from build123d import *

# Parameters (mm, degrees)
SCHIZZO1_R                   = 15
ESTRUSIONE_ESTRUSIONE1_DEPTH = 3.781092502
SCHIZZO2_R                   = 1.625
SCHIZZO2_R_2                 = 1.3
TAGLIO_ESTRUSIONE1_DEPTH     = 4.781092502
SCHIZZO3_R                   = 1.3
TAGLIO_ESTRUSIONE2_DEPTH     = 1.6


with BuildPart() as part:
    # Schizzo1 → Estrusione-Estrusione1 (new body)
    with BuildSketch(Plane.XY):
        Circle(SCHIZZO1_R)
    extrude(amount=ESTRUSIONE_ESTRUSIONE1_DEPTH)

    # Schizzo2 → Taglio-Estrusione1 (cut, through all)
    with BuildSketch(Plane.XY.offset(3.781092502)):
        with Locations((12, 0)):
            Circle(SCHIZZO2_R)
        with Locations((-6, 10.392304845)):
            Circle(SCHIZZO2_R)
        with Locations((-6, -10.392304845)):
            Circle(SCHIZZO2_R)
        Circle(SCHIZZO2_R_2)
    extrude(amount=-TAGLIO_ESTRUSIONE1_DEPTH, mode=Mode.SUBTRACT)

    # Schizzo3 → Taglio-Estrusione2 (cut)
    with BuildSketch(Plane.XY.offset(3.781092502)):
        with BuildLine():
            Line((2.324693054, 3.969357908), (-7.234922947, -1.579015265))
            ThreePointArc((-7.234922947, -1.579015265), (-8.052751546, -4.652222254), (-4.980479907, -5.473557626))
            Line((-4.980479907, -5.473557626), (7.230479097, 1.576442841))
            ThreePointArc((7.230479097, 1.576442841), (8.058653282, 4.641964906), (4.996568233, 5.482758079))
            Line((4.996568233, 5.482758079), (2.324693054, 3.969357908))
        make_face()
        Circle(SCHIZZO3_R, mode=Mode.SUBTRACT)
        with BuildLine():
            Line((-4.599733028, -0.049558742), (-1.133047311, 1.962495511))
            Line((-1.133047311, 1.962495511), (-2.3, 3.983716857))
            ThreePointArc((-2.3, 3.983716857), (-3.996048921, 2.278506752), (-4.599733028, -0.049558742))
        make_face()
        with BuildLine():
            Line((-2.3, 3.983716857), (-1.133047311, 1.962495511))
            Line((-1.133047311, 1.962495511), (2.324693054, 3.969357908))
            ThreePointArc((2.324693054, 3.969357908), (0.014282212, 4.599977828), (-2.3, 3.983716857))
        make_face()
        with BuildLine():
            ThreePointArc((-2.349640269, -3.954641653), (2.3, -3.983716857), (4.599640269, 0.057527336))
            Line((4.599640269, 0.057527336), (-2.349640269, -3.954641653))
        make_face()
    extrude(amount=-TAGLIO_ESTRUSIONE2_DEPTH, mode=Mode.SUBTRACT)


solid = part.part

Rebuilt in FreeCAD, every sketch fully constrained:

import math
import FreeCAD as App
import Part
import Sketcher
Q = App.Units.Quantity

doc = App.newDocument("Part")
body = doc.addObject("PartDesign::Body", "Body")

# Sketch on XY plane
sketch1 = body.newObject("Sketcher::SketchObject", "Sketch")
sketch1.AttachmentSupport = (doc.getObject("XY_Plane"), [""])
sketch1.MapMode = "FlatFace"
sketch1.addGeometry(Part.Circle(App.Vector(0, 0, 0), App.Vector(0, 0, 1), 15), False)
sketch1.addConstraint(Sketcher.Constraint("Coincident", 0, 3, -1, 1))
sketch1.addConstraint(Sketcher.Constraint("Diameter", 0, Q("30 mm")))
pad1 = body.newObject("PartDesign::Pad", "Pad")
pad1.Profile = sketch1
pad1.Length = 3.781093

# Sketch on XY plane
sketch2 = body.newObject("Sketcher::SketchObject", "Sketch001")
sketch2.AttachmentSupport = (doc.getObject("XY_Plane"), [""])
sketch2.MapMode = "FlatFace"
sketch2.AttachmentOffset = App.Placement(App.Vector(0, 0, 3.781093), App.Rotation())
sketch2.addGeometry(Part.Circle(App.Vector(12, 0, 0), App.Vector(0, 0, 1), 1.6), False)
sketch2.addGeometry(Part.Circle(App.Vector(-6, 10.4, 0), App.Vector(0, 0, 1), 1.6), False)
sketch2.addGeometry(Part.Circle(App.Vector(-6, -10.4, 0), App.Vector(0, 0, 1), 1.6), False)
sketch2.addGeometry(Part.Circle(App.Vector(0, 0, 0), App.Vector(0, 0, 1), 1.3), False)
sketch2.addConstraint(Sketcher.Constraint("Coincident", 3, 3, -1, 1))
sketch2.addConstraint(Sketcher.Constraint("Equal", 0, 1))
sketch2.addConstraint(Sketcher.Constraint("Equal", 1, 2))
sketch2.addConstraint(Sketcher.Constraint("Symmetric", 1, 3, 2, 3, -1))
sketch2.addConstraint(Sketcher.Constraint("PointOnObject", 0, 3, -1))
sketch2.addConstraint(Sketcher.Constraint("Diameter", 3, Q("2.6 mm")))
sketch2.addConstraint(Sketcher.Constraint("Diameter", 0, Q("3.25 mm")))
sketch2.addConstraint(Sketcher.Constraint("DistanceX", -1, 1, 0, 3, Q("12 mm")))
sketch2.addConstraint(Sketcher.Constraint("DistanceX", 1, 3, -1, 1, Q("6 mm")))
sketch2.addConstraint(Sketcher.Constraint("DistanceY", 2, 3, 1, 3, Q("20.78461 mm")))
pocket1 = body.newObject("PartDesign::Pocket", "Pocket")
pocket1.Profile = sketch2
pocket1.Type = "ThroughAll"

# Sketch on XY plane
sketch3 = body.newObject("Sketcher::SketchObject", "Sketch002")
sketch3.AttachmentSupport = (doc.getObject("XY_Plane"), [""])
sketch3.MapMode = "FlatFace"
sketch3.AttachmentOffset = App.Placement(App.Vector(0, 0, 3.781093), App.Rotation())
sketch3.addGeometry(Part.LineSegment(App.Vector(5, 5.5, 0), App.Vector(2.3, 4, 0)), False)
sketch3.addGeometry(Part.ArcOfCircle(Part.Circle(App.Vector(0, 0, 0), App.Vector(0, 0, 1), 4.6), math.radians(60), math.radians(120)), False)
sketch3.addGeometry(Part.ArcOfCircle(Part.Circle(App.Vector(0, 0, 0), App.Vector(0, 0, 1), 4.6), math.radians(120), math.radians(181)), False)
sketch3.addGeometry(Part.LineSegment(App.Vector(-4.6, 0, 0), App.Vector(-7.2, -1.6, 0)), False)
sketch3.addGeometry(Part.ArcOfCircle(Part.Circle(App.Vector(-6.1, -3.5, 0), App.Vector(0, 0, 1), 2.2), math.radians(120), math.radians(300)), False)
sketch3.addGeometry(Part.LineSegment(App.Vector(-5, -5.5, 0), App.Vector(-2.3, -4, 0)), False)
sketch3.addGeometry(Part.ArcOfCircle(Part.Circle(App.Vector(0, 0, 0), App.Vector(0, 0, 1), 4.6), math.radians(-121), math.radians(1)), False)
sketch3.addGeometry(Part.LineSegment(App.Vector(4.6, 0.1, 0), App.Vector(7.2, 1.6, 0)), False)
sketch3.addGeometry(Part.ArcOfCircle(Part.Circle(App.Vector(6.1, 3.5, 0), App.Vector(0, 0, 1), 2.2), math.radians(-60), math.radians(120)), False)
sketch3.addGeometry(Part.Circle(App.Vector(0, 0, 0), App.Vector(0, 0, 1), 1.3), False)
sketch3.addConstraint(Sketcher.Constraint("Coincident", 0, 2, 1, 1))
sketch3.addConstraint(Sketcher.Constraint("Tangent", 1, 2, 2, 1))
sketch3.addConstraint(Sketcher.Constraint("Coincident", 2, 2, 3, 1))
sketch3.addConstraint(Sketcher.Constraint("Tangent", 3, 2, 4, 1))
sketch3.addConstraint(Sketcher.Constraint("Tangent", 4, 2, 5, 1))
sketch3.addConstraint(Sketcher.Constraint("Coincident", 5, 2, 6, 1))
sketch3.addConstraint(Sketcher.Constraint("Coincident", 6, 2, 7, 1))
sketch3.addConstraint(Sketcher.Constraint("Tangent", 7, 2, 8, 1))
sketch3.addConstraint(Sketcher.Constraint("Tangent", 8, 2, 0, 1))
sketch3.addConstraint(Sketcher.Constraint("Coincident", 1, 3, -1, 1))
sketch3.addConstraint(Sketcher.Constraint("Coincident", 6, 3, -1, 1))
sketch3.addConstraint(Sketcher.Constraint("Coincident", 9, 3, -1, 1))
sketch3.addConstraint(Sketcher.Constraint("Equal", 1, 2))
sketch3.addConstraint(Sketcher.Constraint("Equal", 2, 6))
sketch3.addConstraint(Sketcher.Constraint("Equal", 4, 8))
sketch3.addConstraint(Sketcher.Constraint("Symmetric", 4, 3, 8, 3, -1, 1))
sketch3.addConstraint(Sketcher.Constraint("Parallel", 5, 7))
sketch3.addConstraint(Sketcher.Constraint("Equal", 5, 7))
sketch3.addConstraint(Sketcher.Constraint("Diameter", 9, Q("2.6 mm")))
sketch3.addConstraint(Sketcher.Constraint("Radius", 1, Q("4.6 mm")))
sketch3.addConstraint(Sketcher.Constraint("Angle", 5, Q("30 deg")))
sketch3.addConstraint(Sketcher.Constraint("Radius", 4, Q("2.25 mm")))
sketch3.addConstraint(Sketcher.Constraint("DistanceX", 1, 2, -1, 1, Q("2.3 mm")))
sketch3.addConstraint(Sketcher.Constraint("DistanceY", 4, 3, 8, 3, Q("7.05 mm")))
sketch3.addConstraint(Sketcher.Constraint("DistanceY", 4, 2, 2, 2, Q("5.423999 mm")))
sketch3.addConstraint(Sketcher.Constraint("DistanceY", 0, 2, 8, 2, Q("1.5134 mm")))
pocket2 = body.newObject("PartDesign::Pocket", "Pocket001")
pocket2.Profile = sketch3
pocket2.Length = 1.6

doc.recompute()
